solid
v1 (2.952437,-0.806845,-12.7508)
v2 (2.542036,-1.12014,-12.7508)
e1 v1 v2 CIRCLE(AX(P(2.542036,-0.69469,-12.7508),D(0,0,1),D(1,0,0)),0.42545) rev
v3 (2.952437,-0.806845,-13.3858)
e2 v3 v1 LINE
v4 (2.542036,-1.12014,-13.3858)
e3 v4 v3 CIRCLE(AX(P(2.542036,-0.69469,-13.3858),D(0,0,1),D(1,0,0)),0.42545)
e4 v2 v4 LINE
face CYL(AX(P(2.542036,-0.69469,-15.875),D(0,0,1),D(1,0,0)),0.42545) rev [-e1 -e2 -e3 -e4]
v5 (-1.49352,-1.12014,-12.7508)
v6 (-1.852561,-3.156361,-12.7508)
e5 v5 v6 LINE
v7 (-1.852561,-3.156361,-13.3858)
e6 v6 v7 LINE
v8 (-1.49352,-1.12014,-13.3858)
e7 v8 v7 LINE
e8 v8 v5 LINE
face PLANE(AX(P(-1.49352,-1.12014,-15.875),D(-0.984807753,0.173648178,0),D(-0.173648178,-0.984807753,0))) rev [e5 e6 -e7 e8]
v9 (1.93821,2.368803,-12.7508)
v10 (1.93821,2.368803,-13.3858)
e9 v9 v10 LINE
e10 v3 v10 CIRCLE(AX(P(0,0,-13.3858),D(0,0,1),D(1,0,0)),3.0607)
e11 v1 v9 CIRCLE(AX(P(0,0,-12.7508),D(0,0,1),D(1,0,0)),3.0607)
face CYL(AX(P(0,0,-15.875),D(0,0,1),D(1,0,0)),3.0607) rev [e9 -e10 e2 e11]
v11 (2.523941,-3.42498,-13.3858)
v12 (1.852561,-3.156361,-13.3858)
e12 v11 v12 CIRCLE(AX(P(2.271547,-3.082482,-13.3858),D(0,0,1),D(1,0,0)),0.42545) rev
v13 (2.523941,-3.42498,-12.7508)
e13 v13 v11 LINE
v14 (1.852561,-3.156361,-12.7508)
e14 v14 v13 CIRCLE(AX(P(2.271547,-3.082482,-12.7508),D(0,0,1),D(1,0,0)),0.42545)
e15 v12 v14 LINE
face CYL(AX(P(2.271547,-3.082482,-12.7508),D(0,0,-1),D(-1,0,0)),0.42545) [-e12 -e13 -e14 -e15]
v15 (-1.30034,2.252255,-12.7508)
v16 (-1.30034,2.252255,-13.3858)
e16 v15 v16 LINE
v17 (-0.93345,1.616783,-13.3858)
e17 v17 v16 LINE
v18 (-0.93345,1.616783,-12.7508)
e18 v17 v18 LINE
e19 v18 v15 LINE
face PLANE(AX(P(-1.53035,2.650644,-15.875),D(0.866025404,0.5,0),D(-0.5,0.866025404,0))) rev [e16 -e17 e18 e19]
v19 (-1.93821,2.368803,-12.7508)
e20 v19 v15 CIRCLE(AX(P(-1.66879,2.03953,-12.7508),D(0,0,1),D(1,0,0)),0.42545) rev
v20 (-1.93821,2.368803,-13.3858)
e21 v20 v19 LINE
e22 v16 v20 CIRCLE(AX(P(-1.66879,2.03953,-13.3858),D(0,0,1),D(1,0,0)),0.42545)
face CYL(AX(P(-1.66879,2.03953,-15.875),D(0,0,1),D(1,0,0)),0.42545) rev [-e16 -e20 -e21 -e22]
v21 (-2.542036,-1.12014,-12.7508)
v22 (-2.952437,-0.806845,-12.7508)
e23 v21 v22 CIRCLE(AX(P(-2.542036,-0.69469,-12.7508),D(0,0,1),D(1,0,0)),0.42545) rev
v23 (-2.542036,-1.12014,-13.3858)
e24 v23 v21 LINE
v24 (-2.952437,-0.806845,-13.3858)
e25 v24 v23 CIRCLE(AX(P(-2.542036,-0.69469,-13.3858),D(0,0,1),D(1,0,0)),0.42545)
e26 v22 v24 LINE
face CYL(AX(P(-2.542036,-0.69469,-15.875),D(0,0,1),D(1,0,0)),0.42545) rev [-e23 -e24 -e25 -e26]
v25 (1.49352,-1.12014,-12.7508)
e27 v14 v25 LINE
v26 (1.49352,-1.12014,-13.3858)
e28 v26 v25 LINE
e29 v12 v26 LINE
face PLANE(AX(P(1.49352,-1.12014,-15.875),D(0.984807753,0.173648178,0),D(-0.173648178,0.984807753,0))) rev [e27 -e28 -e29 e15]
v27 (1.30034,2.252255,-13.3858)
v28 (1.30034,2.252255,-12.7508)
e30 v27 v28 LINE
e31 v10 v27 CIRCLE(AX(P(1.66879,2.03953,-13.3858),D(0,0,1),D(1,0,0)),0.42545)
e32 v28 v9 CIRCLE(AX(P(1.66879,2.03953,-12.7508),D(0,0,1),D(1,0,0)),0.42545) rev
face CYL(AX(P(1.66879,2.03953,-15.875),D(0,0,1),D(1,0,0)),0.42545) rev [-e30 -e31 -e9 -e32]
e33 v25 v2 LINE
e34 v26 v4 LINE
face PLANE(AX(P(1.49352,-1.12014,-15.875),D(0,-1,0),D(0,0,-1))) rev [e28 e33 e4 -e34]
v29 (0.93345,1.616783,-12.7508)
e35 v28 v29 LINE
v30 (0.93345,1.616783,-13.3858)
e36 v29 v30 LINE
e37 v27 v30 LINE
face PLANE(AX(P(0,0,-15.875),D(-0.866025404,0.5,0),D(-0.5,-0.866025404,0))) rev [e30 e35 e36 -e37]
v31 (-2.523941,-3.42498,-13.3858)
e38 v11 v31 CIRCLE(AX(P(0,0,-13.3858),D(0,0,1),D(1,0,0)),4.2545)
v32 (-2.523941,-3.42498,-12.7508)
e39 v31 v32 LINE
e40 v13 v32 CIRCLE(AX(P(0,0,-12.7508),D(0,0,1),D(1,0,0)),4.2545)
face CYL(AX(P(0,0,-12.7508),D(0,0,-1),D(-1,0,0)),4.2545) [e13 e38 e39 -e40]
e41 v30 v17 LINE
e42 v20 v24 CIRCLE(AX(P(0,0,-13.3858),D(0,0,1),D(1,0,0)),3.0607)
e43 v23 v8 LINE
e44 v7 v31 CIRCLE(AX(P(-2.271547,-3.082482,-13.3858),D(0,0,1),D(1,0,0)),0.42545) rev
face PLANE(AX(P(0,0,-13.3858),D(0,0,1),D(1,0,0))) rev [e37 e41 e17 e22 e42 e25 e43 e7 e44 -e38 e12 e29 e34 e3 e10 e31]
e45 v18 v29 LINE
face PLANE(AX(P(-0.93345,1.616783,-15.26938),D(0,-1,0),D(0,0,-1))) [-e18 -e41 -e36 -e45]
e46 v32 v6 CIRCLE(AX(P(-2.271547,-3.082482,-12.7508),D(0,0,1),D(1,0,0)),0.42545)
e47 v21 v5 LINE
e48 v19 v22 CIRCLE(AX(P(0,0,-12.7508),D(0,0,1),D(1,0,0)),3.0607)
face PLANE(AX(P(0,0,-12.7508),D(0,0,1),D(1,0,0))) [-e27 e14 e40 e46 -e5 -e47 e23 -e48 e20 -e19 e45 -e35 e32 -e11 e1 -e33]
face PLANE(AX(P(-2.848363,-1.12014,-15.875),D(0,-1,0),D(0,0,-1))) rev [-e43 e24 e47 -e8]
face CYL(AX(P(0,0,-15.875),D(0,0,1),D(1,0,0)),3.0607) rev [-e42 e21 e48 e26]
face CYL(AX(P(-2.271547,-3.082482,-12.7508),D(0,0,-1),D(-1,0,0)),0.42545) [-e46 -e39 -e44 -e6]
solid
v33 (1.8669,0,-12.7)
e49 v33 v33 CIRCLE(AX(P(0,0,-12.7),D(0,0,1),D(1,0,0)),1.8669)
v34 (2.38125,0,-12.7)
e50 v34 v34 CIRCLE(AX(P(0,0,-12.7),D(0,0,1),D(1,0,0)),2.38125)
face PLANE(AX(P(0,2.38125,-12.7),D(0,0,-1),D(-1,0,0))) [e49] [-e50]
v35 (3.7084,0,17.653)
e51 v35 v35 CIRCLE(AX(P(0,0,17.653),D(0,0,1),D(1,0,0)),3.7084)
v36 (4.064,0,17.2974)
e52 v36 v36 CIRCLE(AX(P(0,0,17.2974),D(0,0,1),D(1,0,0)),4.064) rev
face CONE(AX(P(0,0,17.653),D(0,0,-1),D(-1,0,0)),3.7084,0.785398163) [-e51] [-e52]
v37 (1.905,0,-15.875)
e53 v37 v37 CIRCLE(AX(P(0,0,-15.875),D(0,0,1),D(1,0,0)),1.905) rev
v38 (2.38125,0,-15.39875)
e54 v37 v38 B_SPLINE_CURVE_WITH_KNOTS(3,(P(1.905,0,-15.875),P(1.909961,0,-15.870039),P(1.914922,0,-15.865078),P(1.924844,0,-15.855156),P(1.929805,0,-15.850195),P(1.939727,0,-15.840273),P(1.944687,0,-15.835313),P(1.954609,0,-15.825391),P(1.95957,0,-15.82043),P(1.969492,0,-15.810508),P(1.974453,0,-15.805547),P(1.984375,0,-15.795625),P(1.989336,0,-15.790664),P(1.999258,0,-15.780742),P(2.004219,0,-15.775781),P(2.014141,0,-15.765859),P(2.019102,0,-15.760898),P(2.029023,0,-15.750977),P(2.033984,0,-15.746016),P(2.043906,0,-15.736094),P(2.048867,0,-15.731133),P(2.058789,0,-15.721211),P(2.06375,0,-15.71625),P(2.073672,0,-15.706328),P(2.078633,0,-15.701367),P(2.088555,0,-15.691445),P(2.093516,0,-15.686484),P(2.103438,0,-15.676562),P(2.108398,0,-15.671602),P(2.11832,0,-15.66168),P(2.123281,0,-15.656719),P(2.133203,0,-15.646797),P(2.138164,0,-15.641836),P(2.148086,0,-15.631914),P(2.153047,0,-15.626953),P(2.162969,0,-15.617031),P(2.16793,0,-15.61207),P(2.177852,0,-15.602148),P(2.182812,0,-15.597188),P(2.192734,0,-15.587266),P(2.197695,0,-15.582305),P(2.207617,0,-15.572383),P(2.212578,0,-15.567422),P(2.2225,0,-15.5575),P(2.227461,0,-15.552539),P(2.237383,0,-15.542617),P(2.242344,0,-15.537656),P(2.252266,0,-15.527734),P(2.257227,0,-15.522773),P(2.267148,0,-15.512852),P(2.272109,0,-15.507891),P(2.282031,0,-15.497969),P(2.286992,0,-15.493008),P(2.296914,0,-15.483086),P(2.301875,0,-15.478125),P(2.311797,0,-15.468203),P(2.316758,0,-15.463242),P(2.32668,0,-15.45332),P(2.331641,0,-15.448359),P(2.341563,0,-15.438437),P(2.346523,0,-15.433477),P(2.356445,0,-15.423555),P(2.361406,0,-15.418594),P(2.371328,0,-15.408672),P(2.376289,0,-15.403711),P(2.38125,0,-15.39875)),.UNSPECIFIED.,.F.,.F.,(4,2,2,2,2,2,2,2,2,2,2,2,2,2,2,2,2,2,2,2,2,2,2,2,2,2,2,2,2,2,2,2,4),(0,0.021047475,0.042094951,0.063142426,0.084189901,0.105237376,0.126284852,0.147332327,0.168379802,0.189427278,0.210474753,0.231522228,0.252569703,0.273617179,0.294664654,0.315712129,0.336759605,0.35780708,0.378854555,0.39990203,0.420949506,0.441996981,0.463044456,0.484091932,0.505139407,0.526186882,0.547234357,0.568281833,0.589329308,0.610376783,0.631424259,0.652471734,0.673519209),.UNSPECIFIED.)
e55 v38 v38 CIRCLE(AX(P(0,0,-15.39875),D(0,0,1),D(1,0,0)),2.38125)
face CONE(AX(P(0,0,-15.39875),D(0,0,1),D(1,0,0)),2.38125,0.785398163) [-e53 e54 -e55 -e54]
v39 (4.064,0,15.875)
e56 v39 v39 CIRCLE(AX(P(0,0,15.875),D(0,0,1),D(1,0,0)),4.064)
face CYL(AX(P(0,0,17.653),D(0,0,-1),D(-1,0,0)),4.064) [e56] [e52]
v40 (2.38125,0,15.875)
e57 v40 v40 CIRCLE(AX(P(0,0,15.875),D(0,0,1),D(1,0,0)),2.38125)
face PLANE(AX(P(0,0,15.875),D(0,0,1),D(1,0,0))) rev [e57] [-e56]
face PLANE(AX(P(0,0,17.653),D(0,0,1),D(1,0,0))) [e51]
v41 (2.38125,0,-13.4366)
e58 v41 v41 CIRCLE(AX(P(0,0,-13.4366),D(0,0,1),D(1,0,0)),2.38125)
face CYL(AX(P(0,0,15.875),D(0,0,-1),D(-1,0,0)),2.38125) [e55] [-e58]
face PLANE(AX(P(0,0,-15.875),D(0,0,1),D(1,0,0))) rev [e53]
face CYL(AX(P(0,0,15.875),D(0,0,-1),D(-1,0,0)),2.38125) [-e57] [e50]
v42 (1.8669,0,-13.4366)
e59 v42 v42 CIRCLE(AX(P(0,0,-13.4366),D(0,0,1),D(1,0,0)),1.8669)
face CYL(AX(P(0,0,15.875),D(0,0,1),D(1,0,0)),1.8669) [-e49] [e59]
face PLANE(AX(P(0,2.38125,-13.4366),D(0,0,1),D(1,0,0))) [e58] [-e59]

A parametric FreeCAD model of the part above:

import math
import FreeCAD as App
import Part
import Sketcher

V = App.Vector
Q = App.Units.Quantity


def edges_at(feature, points):
    """Names of the edges that pass closest to the given points."""
    edges = feature.Shape.Edges
    near = lambda p: min(range(len(edges)), key=lambda i: edges[i].distToShape(Part.Vertex(*p))[0])
    return sorted({f"Edge{near(p) + 1}" for p in points})


def add_polygon(sketch, points):
    """Adds a closed chain of lines whose ends are joined by coincident constraints."""
    first, n = sketch.GeometryCount, len(points)
    for a, b in zip(points, points[1:] + points[:1]):
        sketch.addGeometry(Part.LineSegment(App.Vector(*a, 0), App.Vector(*b, 0)), False)
    for i in range(n):
        sketch.addConstraint(Sketcher.Constraint("Coincident", first + i, 2, first + (i + 1) % n, 1))

doc = App.newDocument("Part")
body = doc.addObject("PartDesign::Body", "Body")

# Sketch on XY plane
sketch1 = doc.addObject("Sketcher::SketchObject", "Sketch")
body.addObject(sketch1)
sketch1.AttachmentSupport = (doc.XY_Plane, [""])
sketch1.MapMode = "FlatFace"
sketch1.addGeometry(Part.Circle(V(0, 0, 0), V(0, 0, 1), 2.4), False)
sketch1.addConstraint(Sketcher.Constraint("Coincident", 0, 3, -1, 1))
sketch1.addConstraint(Sketcher.Constraint("Diameter", 0, Q("0.1875 in")))
pad1 = doc.addObject("PartDesign::Pad", "Pad")
body.addObject(pad1)
pad1.Profile = sketch1
pad1.Length = Q("1.25 in")
pad1.Midplane = True

# Sketch on YZ plane
sketch2 = doc.addObject("Sketcher::SketchObject", "Sketch001")
body.addObject(sketch2)
sketch2.AttachmentSupport = (doc.YZ_Plane, [""])
sketch2.MapMode = "FlatFace"
add_polygon(sketch2, [(2.4, -12.7), (1.9, -12.7), (1.9, -13.4), (2.4, -13.4)])  # lines 0-3
sketch2.addConstraint(Sketcher.Constraint("Horizontal", 0))
sketch2.addConstraint(Sketcher.Constraint("Vertical", 1))
sketch2.addConstraint(Sketcher.Constraint("Horizontal", 2))
sketch2.addConstraint(Sketcher.Constraint("Vertical", 3))
sketch2.addConstraint(Sketcher.Constraint("DistanceY", 0, 2, -1, 1, Q("0.5 in")))
sketch2.addConstraint(Sketcher.Constraint("DistanceY", 1, 2, 1, 1, Q("0.029 in")))
sketch2.addConstraint(Sketcher.Constraint("DistanceX", -1, 1, 2, 2, Q("0.09375 in")))
sketch2.addConstraint(Sketcher.Constraint("DistanceX", -1, 1, 0, 2, Q("0.0735 in")))
groove = doc.addObject("PartDesign::Groove", "Groove")
body.addObject(groove)
groove.Profile = sketch2
groove.ReferenceAxis = (sketch2, ["V_Axis"])
groove.Angle = 360

# Sketch on XY plane
sketch3 = doc.addObject("Sketcher::SketchObject", "Sketch002")
body.addObject(sketch3)
sketch3.AttachmentSupport = (doc.XY_Plane, [""])
sketch3.MapMode = "FlatFace"
sketch3.AttachmentOffset = App.Placement(V(0, 0, 0.625 * 25.4), App.Rotation())
sketch3.addGeometry(Part.Circle(V(0, 0, 0), V(0, 0, 1), 4.1), False)
sketch3.addConstraint(Sketcher.Constraint("Coincident", 0, 3, -1, 1))
sketch3.addConstraint(Sketcher.Constraint("Diameter", 0, Q("0.32 in")))
pad2 = doc.addObject("PartDesign::Pad", "Pad001")
body.addObject(pad2)
pad2.Profile = sketch3
pad2.Length = Q("0.07 in")
doc.recompute()

chamfer = doc.addObject("PartDesign::Chamfer", "Chamfer")
body.addObject(chamfer)
chamfer.Base = (pad2, edges_at(pad2, [(-4.064, 0, 17.653)]))
chamfer.Size = Q("0.014 in")
doc.recompute()

chamfer2 = doc.addObject("PartDesign::Chamfer", "Chamfer001")
body.addObject(chamfer2)
chamfer2.Base = (chamfer, edges_at(chamfer, [(-2.381, 0, -15.875)]))
chamfer2.Size = 0.47625
body2 = doc.addObject("PartDesign::Body", "Body001")

# Sketch on XY plane
sketch4 = doc.addObject("Sketcher::SketchObject", "Sketch003")
body2.addObject(sketch4)
sketch4.AttachmentSupport = (doc.getObject("XY_Plane001"), [""])
sketch4.MapMode = "FlatFace"
sketch4.AttachmentOffset = App.Placement(V(0, 0, -0.5145 * 25.4), App.Rotation())
sketch4.addGeometry(Part.Circle(V(0, 0, 0), V(0, 0, 1), 4.3), False)
sketch4.addGeometry(Part.Circle(V(0, 0, 0), V(0, 0, 1), 1.9), False)
sketch4.addConstraint(Sketcher.Constraint("Coincident", 0, 3, -1, 1))
sketch4.addConstraint(Sketcher.Constraint("Coincident", 1, 3, -1, 1))
sketch4.addConstraint(Sketcher.Constraint("Diameter", 0, Q("0.335 in")))
sketch4.addConstraint(Sketcher.Constraint("Diameter", 1, Q("0.147 in")))
pad3 = doc.addObject("PartDesign::Pad", "Pad002")
body2.addObject(pad3)
pad3.Profile = sketch4
pad3.Length = Q("0.025 in")
pad3.Midplane = True

# Sketch on XY plane
sketch5 = doc.addObject("Sketcher::SketchObject", "Sketch004")
body2.addObject(sketch5)
sketch5.AttachmentSupport = (doc.getObject("XY_Plane001"), [""])
sketch5.MapMode = "FlatFace"
sketch5.addGeometry(Part.LineSegment(V(0, 0, 0), V(-1.5, 2.7, 0)), False)
sketch5.addGeometry(Part.ArcOfCircle(Part.Circle(V(0, 0, 0), V(0, 0, 1), 3.1), math.radians(120), math.radians(201)), False)
sketch5.addGeometry(Part.LineSegment(V(-2.8, -1.1, 0), V(-1.5, -1.1, 0)), False)
sketch5.addGeometry(Part.LineSegment(V(-1.5, -1.1, 0), V(-2, -3.8, 0)), False)
sketch5.addGeometry(Part.ArcOfCircle(Part.Circle(V(0, 0, 0), V(0, 0, 1), 4.3), math.radians(-117), math.radians(-63)), False)
sketch5.addGeometry(Part.LineSegment(V(2, -3.8, 0), V(1.5, -1.1, 0)), False)
sketch5.addGeometry(Part.LineSegment(V(1.5, -1.1, 0), V(2.8, -1.1, 0)), False)
sketch5.addGeometry(Part.ArcOfCircle(Part.Circle(V(0, 0, 0), V(0, 0, 1), 3.1), math.radians(-21), math.radians(60)), False)
sketch5.addGeometry(Part.LineSegment(V(1.5, 2.7, 0), V(0, 0, 0)), False)
sketch5.addConstraint(Sketcher.Constraint("Coincident", 0, 2, 1, 1))
sketch5.addConstraint(Sketcher.Constraint("Coincident", 1, 2, 2, 1))
sketch5.addConstraint(Sketcher.Constraint("Coincident", 2, 2, 3, 1))
sketch5.addConstraint(Sketcher.Constraint("Coincident", 3, 2, 4, 1))
sketch5.addConstraint(Sketcher.Constraint("Coincident", 4, 2, 5, 1))
sketch5.addConstraint(Sketcher.Constraint("Coincident", 5, 2, 6, 1))
sketch5.addConstraint(Sketcher.Constraint("Coincident", 6, 2, 7, 1))
sketch5.addConstraint(Sketcher.Constraint("Coincident", 7, 2, 8, 1))
sketch5.addConstraint(Sketcher.Constraint("Coincident", 8, 2, 0, 1))
sketch5.addConstraint(Sketcher.Constraint("Horizontal", 2))
sketch5.addConstraint(Sketcher.Constraint("Horizontal", 6))
sketch5.addConstraint(Sketcher.Constraint("Coincident", 1, 3, -1, 1))
sketch5.addConstraint(Sketcher.Constraint("Coincident", 4, 3, -1, 1))
sketch5.addConstraint(Sketcher.Constraint("Coincident", 7, 3, -1, 1))
sketch5.addConstraint(Sketcher.Constraint("Coincident", 8, 2, -1, 1))
sketch5.addConstraint(Sketcher.Constraint("Equal", 1, 7))
sketch5.addConstraint(Sketcher.Constraint("Symmetric", 2, 2, 5, 2, -2))
sketch5.addConstraint(Sketcher.Constraint("Horizontal", 3, 2, 4, 2))
sketch5.addConstraint(Sketcher.Constraint("Horizontal", 0, 2, 7, 2))
sketch5.addConstraint(Sketcher.Constraint("Angle", 0, Q("120 deg")))
sketch5.addConstraint(Sketcher.Constraint("Angle", 3, Q("-100 deg")))
sketch5.addConstraint(Sketcher.Constraint("Radius", 1, Q("0.1205 in")))
sketch5.addConstraint(Sketcher.Constraint("Radius", 4, Q("0.1675 in")))
sketch5.addConstraint(Sketcher.Constraint("DistanceY", 1, 2, -1, 1, Q("0.0441 in")))
sketch5.addConstraint(Sketcher.Constraint("DistanceX", 2, 2, -1, 1, Q("0.0588 in")))
pocket1 = doc.addObject("PartDesign::Pocket", "Pocket")
body2.addObject(pocket1)
pocket1.Profile = sketch5
pocket1.Type = "ThroughAll"

# Sketch on XY plane
sketch6 = doc.addObject("Sketcher::SketchObject", "Sketch005")
body2.addObject(sketch6)
sketch6.AttachmentSupport = (doc.getObject("XY_Plane001"), [""])
sketch6.MapMode = "FlatFace"
sketch6.AttachmentOffset = App.Placement(V(0, 0, -0.502 * 25.4), App.Rotation())
sketch6.addGeometry(Part.LineSegment(V(-0.9, 1.6, 0), V(0.9, 1.6, 0)), False)
sketch6.addGeometry(Part.ArcOfCircle(Part.Circle(V(0, 0, 0), V(0, 0, 1), 1.9), math.radians(60), math.radians(120)), False)
sketch6.addConstraint(Sketcher.Constraint("Coincident", 0, 1, 1, 2))
sketch6.addConstraint(Sketcher.Constraint("Coincident", 1, 1, 0, 2))
sketch6.addConstraint(Sketcher.Constraint("Horizontal", 0))
sketch6.addConstraint(Sketcher.Constraint("Coincident", 1, 3, -1, 1))
sketch6.addConstraint(Sketcher.Constraint("Radius", 1, Q("0.0735 in")))
sketch6.addConstraint(Sketcher.Constraint("DistanceX", 0, 1, 0, 2, Q("0.0735 in")))
pad4 = doc.addObject("PartDesign::Pad", "Pad003")
body2.addObject(pad4)
pad4.Profile = sketch6
pad4.Length = Q("0.025 in")
pad4.Reversed = True
doc.recompute()

fillet = doc.addObject("PartDesign::Fillet", "Fillet")
body2.addObject(fillet)
fillet.Base = (pad4, edges_at(pad4, [
    (1.53, 2.651, -13.068),
    (1.962, -3.775, -13.068),
    (-2.848, -1.12, -13.068),
    (2.848, -1.12, -13.068),
    (-1.962, -3.775, -13.068),
    (-1.53, 2.651, -13.068),
]))
fillet.Radius = 0.42545

doc.recompute()
